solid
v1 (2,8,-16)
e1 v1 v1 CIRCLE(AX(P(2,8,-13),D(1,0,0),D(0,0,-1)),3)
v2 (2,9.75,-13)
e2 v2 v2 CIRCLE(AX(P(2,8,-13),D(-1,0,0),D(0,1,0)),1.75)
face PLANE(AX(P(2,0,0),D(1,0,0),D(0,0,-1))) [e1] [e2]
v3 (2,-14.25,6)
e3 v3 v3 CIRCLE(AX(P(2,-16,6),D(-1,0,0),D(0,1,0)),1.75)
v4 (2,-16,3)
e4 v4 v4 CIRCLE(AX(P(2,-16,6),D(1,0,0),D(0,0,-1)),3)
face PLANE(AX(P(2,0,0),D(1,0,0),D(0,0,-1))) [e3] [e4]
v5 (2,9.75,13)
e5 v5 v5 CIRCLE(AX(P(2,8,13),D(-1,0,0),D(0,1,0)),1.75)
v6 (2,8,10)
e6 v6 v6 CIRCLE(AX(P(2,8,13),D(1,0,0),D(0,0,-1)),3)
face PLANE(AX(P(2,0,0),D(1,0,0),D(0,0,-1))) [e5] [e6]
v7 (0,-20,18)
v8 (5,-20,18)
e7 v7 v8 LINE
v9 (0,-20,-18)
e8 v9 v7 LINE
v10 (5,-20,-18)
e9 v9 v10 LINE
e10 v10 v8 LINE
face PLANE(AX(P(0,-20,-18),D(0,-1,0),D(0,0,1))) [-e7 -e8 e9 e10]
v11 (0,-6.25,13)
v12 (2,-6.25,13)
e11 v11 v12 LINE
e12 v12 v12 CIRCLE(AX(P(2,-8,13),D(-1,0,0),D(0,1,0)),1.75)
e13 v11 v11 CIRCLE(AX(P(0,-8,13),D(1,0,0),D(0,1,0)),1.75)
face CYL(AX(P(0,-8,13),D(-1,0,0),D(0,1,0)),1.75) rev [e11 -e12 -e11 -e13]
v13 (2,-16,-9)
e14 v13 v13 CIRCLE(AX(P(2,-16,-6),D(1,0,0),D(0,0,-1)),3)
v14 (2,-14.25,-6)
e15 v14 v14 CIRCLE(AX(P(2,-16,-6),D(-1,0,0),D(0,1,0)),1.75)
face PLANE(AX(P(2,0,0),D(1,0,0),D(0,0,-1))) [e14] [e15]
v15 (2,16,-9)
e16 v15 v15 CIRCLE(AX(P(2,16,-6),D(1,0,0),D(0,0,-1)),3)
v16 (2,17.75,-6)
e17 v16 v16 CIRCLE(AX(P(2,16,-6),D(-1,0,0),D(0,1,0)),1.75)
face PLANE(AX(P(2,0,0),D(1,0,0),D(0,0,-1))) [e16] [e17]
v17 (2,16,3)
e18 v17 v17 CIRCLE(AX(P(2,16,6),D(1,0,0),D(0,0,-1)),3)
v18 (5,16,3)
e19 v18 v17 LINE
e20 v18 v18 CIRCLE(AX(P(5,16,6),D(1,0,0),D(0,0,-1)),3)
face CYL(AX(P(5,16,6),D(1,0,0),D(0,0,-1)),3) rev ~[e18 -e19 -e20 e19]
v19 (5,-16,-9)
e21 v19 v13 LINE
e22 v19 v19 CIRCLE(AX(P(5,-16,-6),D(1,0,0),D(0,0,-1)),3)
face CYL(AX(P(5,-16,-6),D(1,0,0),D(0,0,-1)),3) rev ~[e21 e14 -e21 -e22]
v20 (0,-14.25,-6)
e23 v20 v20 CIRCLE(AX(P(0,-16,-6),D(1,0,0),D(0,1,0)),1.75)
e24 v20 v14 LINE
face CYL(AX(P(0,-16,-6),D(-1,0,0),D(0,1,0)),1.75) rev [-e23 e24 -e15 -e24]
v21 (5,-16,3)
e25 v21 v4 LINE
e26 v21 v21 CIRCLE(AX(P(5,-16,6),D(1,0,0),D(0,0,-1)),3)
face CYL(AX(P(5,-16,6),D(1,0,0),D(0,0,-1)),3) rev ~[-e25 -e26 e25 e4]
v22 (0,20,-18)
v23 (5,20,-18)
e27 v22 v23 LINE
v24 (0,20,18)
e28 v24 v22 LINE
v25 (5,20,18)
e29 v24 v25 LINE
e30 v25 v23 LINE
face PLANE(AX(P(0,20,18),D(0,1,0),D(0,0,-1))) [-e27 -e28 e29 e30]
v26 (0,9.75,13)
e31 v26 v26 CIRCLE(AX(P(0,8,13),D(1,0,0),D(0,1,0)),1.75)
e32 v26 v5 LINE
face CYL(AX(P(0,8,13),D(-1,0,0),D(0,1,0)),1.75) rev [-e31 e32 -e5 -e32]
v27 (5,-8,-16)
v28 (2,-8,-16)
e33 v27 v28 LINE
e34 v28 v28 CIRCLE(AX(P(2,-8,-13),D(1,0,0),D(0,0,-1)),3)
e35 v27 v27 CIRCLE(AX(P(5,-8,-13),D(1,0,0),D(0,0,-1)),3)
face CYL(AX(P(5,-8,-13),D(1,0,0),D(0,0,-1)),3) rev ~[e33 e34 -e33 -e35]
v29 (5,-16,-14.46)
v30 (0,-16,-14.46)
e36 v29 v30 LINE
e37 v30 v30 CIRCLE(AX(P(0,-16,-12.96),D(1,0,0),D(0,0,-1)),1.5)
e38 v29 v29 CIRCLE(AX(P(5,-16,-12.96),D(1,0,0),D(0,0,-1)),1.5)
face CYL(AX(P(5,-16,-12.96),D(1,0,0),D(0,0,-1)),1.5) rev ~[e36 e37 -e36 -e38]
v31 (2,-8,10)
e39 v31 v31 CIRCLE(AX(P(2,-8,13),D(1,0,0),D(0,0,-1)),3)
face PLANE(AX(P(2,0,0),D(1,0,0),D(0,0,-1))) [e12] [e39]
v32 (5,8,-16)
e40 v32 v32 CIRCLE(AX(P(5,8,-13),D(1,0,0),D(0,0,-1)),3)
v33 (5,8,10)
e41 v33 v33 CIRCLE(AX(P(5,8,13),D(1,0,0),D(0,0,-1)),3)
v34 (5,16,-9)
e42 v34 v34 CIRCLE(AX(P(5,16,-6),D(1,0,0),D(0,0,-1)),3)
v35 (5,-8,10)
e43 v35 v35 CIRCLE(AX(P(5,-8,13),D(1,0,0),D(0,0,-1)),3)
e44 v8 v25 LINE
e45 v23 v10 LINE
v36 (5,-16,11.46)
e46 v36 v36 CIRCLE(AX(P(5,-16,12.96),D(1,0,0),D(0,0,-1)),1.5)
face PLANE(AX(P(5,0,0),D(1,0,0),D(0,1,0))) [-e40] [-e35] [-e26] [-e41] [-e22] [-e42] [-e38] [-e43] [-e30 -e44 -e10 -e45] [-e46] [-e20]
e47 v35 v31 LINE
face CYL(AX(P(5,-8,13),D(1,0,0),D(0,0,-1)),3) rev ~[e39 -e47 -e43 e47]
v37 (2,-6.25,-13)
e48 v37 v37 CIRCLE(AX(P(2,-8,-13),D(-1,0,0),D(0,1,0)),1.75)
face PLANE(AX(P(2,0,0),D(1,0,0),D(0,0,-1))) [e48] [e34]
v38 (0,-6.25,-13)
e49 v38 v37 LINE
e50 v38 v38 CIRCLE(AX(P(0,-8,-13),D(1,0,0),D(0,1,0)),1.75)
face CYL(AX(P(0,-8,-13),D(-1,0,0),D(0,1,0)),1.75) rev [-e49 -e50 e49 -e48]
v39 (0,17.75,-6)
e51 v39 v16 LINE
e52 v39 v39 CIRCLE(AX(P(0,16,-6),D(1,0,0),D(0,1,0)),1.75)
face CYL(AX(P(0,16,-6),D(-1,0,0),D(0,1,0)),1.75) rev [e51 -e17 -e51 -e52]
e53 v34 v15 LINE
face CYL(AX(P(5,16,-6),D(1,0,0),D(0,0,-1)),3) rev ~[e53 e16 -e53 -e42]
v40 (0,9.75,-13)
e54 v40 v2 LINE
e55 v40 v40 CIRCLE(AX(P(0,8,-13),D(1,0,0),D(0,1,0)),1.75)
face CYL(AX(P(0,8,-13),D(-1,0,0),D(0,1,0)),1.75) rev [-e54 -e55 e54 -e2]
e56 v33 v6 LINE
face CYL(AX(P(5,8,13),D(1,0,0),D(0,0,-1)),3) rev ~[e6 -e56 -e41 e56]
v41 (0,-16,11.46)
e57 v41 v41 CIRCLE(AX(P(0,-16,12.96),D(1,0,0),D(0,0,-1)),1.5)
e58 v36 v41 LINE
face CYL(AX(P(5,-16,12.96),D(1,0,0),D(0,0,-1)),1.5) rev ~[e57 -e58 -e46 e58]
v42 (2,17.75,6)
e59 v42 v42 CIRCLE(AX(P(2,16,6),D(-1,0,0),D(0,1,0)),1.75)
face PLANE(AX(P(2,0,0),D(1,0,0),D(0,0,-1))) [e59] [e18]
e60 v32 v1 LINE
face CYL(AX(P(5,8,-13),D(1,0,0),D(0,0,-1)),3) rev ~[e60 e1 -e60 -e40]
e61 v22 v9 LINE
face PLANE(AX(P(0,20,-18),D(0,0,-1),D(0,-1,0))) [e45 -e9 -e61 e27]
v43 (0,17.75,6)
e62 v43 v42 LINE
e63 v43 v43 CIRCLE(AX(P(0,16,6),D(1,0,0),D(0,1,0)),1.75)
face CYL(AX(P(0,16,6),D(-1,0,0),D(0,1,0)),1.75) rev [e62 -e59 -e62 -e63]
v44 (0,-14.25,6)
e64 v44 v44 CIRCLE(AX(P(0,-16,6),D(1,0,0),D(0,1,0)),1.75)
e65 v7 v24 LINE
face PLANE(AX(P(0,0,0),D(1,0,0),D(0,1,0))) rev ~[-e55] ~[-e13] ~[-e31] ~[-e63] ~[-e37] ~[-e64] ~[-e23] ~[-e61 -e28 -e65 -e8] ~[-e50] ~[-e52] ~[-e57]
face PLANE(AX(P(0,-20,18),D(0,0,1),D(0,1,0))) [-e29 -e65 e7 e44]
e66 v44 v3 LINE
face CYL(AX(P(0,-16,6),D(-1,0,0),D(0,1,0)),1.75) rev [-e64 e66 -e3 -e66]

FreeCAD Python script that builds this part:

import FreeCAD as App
import Part
import Sketcher

V = App.Vector
Q = App.Units.Quantity


def add_polygon(sketch, points):
    """Adds a closed chain of lines whose ends are joined by coincident constraints."""
    first, n = sketch.GeometryCount, len(points)
    for a, b in zip(points, points[1:] + points[:1]):
        sketch.addGeometry(Part.LineSegment(App.Vector(*a, 0), App.Vector(*b, 0)), False)
    for i in range(n):
        sketch.addConstraint(Sketcher.Constraint("Coincident", first + i, 2, first + (i + 1) % n, 1))

doc = App.newDocument("Part")
body = doc.addObject("PartDesign::Body", "Body")

# Sketch on YZ plane
sketch1 = body.newObject("Sketcher::SketchObject", "Sketch")
sketch1.AttachmentSupport = (doc.getObject("YZ_Plane"), [""])
sketch1.MapMode = "FlatFace"
add_polygon(sketch1, [(20, 18), (-20, 18), (-20, -18), (20, -18)])  # lines 0-3
sketch1.addGeometry(Part.Circle(V(-8, -13, 0), V(0, 0, 1), 1.75), False)  # 4
sketch1.addGeometry(Part.Circle(V(-16, -6, 0), V(0, 0, 1), 1.75), False)  # 5
sketch1.addGeometry(Part.Circle(V(8, -13, 0), V(0, 0, 1), 1.75), False)  # 6
sketch1.addGeometry(Part.Circle(V(16, -6, 0), V(0, 0, 1), 1.75), False)  # 7
sketch1.addGeometry(Part.Circle(V(-16, 6, 0), V(0, 0, 1), 1.75), False)  # 8
sketch1.addGeometry(Part.Circle(V(-8, 13, 0), V(0, 0, 1), 1.75), False)  # 9
sketch1.addGeometry(Part.Circle(V(16, 6, 0), V(0, 0, 1), 1.75), False)  # 10
sketch1.addGeometry(Part.Circle(V(8, 13, 0), V(0, 0, 1), 1.75), False)  # 11
sketch1.addConstraint(Sketcher.Constraint("Horizontal", 0))
sketch1.addConstraint(Sketcher.Constraint("Vertical", 1))
sketch1.addConstraint(Sketcher.Constraint("Horizontal", 2))
sketch1.addConstraint(Sketcher.Constraint("Vertical", 3))
sketch1.addConstraint(Sketcher.Constraint("Equal", 4, 5))
sketch1.addConstraint(Sketcher.Constraint("Equal", 5, 6))
sketch1.addConstraint(Sketcher.Constraint("Equal", 6, 7))
sketch1.addConstraint(Sketcher.Constraint("Equal", 7, 8))
sketch1.addConstraint(Sketcher.Constraint("Equal", 8, 9))
sketch1.addConstraint(Sketcher.Constraint("Equal", 9, 10))
sketch1.addConstraint(Sketcher.Constraint("Equal", 10, 11))
sketch1.addConstraint(Sketcher.Constraint("Symmetric", 7, 3, 8, 3, -1, 1))
sketch1.addConstraint(Sketcher.Constraint("Symmetric", 6, 3, 9, 3, -1, 1))
sketch1.addConstraint(Sketcher.Constraint("Symmetric", 5, 3, 10, 3, -1, 1))
sketch1.addConstraint(Sketcher.Constraint("Symmetric", 4, 3, 11, 3, -1, 1))
sketch1.addConstraint(Sketcher.Constraint("Symmetric", 0, 2, 2, 2, -1, 1))
sketch1.addConstraint(Sketcher.Constraint("Symmetric", 4, 3, 6, 3, -2))
sketch1.addConstraint(Sketcher.Constraint("Symmetric", 5, 3, 7, 3, -2))
sketch1.addConstraint(Sketcher.Constraint("Diameter", 4, Q("3.5 mm")))
sketch1.addConstraint(Sketcher.Constraint("DistanceX", 0, 2, 0, 1, Q("40 mm")))
sketch1.addConstraint(Sketcher.Constraint("DistanceY", 1, 2, 1, 1, Q("36 mm")))
sketch1.addConstraint(Sketcher.Constraint("DistanceX", 4, 3, -1, 1, Q("8 mm")))
sketch1.addConstraint(Sketcher.Constraint("DistanceY", 4, 3, -1, 1, Q("13 mm")))
sketch1.addConstraint(Sketcher.Constraint("DistanceY", 5, 3, -1, 1, Q("6 mm")))
sketch1.addConstraint(Sketcher.Constraint("DistanceX", 5, 3, 4, 3, Q("8 mm")))
pad1 = body.newObject("PartDesign::Pad", "Pad")
pad1.Profile = sketch1
pad1.Length = 5

# Sketch on YZ plane
sketch2 = body.newObject("Sketcher::SketchObject", "Sketch001")
sketch2.AttachmentSupport = (doc.getObject("YZ_Plane"), [""])
sketch2.MapMode = "FlatFace"
sketch2.AttachmentOffset = App.Placement(V(0, 0, 5), App.Rotation())
sketch2.addGeometry(Part.Circle(V(8, 13, 0), V(0, 0, 1), 3), False)
sketch2.addGeometry(Part.Circle(V(16, 6, 0), V(0, 0, 1), 3), False)
sketch2.addGeometry(Part.Circle(V(16, -6, 0), V(0, 0, 1), 3), False)
sketch2.addGeometry(Part.Circle(V(8, -13, 0), V(0, 0, 1), 3), False)
sketch2.addGeometry(Part.Circle(V(-8, 13, 0), V(0, 0, 1), 3), False)
sketch2.addGeometry(Part.Circle(V(-16, 6, 0), V(0, 0, 1), 3), False)
sketch2.addGeometry(Part.Circle(V(-16, -6, 0), V(0, 0, 1), 3), False)
sketch2.addGeometry(Part.Circle(V(-8, -13, 0), V(0, 0, 1), 3), False)
sketch2.addConstraint(Sketcher.Constraint("Equal", 0, 1))
sketch2.addConstraint(Sketcher.Constraint("Equal", 1, 2))
sketch2.addConstraint(Sketcher.Constraint("Equal", 2, 3))
sketch2.addConstraint(Sketcher.Constraint("Equal", 3, 4))
sketch2.addConstraint(Sketcher.Constraint("Equal", 4, 5))
sketch2.addConstraint(Sketcher.Constraint("Equal", 5, 6))
sketch2.addConstraint(Sketcher.Constraint("Equal", 6, 7))
sketch2.addConstraint(Sketcher.Constraint("Symmetric", 3, 3, 4, 3, -1, 1))
sketch2.addConstraint(Sketcher.Constraint("Symmetric", 2, 3, 5, 3, -1, 1))
sketch2.addConstraint(Sketcher.Constraint("Symmetric", 1, 3, 6, 3, -1, 1))
sketch2.addConstraint(Sketcher.Constraint("Symmetric", 0, 3, 7, 3, -1, 1))
sketch2.addConstraint(Sketcher.Constraint("Symmetric", 0, 3, 4, 3, -2))
sketch2.addConstraint(Sketcher.Constraint("Symmetric", 1, 3, 5, 3, -2))
sketch2.addConstraint(Sketcher.Constraint("Diameter", 0, Q("6 mm")))
sketch2.addConstraint(Sketcher.Constraint("DistanceY", -1, 1, 1, 3, Q("6 mm")))
sketch2.addConstraint(Sketcher.Constraint("DistanceX", -1, 1, 0, 3, Q("8 mm")))
sketch2.addConstraint(Sketcher.Constraint("DistanceY", -1, 1, 0, 3, Q("13 mm")))
sketch2.addConstraint(Sketcher.Constraint("DistanceX", -1, 1, 1, 3, Q("16 mm")))
pocket1 = body.newObject("PartDesign::Pocket", "Pocket")
pocket1.Profile = sketch2
pocket1.Length = 3

# Sketch on YZ plane
sketch3 = body.newObject("Sketcher::SketchObject", "Sketch002")
sketch3.AttachmentSupport = (doc.getObject("YZ_Plane"), [""])
sketch3.MapMode = "FlatFace"
sketch3.AttachmentOffset = App.Placement(V(0, 0, 5), App.Rotation())
sketch3.addGeometry(Part.Circle(V(-16, 12.96, 0), V(0, 0, 1), 1.5), False)
sketch3.addGeometry(Part.Circle(V(-16, -12.96, 0), V(0, 0, 1), 1.5), False)
sketch3.addConstraint(Sketcher.Constraint("Equal", 0, 1))
sketch3.addConstraint(Sketcher.Constraint("Symmetric", 0, 3, 1, 3, -1))
sketch3.addConstraint(Sketcher.Constraint("Diameter", 0, Q("3 mm")))
sketch3.addConstraint(Sketcher.Constraint("DistanceY", -1, 1, 0, 3, Q("12.96 mm")))
sketch3.addConstraint(Sketcher.Constraint("DistanceX", 0, 3, -1, 1, Q("16 mm")))
pocket2 = body.newObject("PartDesign::Pocket", "Pocket001")
pocket2.Profile = sketch3
pocket2.Length = 5

doc.recompute()
